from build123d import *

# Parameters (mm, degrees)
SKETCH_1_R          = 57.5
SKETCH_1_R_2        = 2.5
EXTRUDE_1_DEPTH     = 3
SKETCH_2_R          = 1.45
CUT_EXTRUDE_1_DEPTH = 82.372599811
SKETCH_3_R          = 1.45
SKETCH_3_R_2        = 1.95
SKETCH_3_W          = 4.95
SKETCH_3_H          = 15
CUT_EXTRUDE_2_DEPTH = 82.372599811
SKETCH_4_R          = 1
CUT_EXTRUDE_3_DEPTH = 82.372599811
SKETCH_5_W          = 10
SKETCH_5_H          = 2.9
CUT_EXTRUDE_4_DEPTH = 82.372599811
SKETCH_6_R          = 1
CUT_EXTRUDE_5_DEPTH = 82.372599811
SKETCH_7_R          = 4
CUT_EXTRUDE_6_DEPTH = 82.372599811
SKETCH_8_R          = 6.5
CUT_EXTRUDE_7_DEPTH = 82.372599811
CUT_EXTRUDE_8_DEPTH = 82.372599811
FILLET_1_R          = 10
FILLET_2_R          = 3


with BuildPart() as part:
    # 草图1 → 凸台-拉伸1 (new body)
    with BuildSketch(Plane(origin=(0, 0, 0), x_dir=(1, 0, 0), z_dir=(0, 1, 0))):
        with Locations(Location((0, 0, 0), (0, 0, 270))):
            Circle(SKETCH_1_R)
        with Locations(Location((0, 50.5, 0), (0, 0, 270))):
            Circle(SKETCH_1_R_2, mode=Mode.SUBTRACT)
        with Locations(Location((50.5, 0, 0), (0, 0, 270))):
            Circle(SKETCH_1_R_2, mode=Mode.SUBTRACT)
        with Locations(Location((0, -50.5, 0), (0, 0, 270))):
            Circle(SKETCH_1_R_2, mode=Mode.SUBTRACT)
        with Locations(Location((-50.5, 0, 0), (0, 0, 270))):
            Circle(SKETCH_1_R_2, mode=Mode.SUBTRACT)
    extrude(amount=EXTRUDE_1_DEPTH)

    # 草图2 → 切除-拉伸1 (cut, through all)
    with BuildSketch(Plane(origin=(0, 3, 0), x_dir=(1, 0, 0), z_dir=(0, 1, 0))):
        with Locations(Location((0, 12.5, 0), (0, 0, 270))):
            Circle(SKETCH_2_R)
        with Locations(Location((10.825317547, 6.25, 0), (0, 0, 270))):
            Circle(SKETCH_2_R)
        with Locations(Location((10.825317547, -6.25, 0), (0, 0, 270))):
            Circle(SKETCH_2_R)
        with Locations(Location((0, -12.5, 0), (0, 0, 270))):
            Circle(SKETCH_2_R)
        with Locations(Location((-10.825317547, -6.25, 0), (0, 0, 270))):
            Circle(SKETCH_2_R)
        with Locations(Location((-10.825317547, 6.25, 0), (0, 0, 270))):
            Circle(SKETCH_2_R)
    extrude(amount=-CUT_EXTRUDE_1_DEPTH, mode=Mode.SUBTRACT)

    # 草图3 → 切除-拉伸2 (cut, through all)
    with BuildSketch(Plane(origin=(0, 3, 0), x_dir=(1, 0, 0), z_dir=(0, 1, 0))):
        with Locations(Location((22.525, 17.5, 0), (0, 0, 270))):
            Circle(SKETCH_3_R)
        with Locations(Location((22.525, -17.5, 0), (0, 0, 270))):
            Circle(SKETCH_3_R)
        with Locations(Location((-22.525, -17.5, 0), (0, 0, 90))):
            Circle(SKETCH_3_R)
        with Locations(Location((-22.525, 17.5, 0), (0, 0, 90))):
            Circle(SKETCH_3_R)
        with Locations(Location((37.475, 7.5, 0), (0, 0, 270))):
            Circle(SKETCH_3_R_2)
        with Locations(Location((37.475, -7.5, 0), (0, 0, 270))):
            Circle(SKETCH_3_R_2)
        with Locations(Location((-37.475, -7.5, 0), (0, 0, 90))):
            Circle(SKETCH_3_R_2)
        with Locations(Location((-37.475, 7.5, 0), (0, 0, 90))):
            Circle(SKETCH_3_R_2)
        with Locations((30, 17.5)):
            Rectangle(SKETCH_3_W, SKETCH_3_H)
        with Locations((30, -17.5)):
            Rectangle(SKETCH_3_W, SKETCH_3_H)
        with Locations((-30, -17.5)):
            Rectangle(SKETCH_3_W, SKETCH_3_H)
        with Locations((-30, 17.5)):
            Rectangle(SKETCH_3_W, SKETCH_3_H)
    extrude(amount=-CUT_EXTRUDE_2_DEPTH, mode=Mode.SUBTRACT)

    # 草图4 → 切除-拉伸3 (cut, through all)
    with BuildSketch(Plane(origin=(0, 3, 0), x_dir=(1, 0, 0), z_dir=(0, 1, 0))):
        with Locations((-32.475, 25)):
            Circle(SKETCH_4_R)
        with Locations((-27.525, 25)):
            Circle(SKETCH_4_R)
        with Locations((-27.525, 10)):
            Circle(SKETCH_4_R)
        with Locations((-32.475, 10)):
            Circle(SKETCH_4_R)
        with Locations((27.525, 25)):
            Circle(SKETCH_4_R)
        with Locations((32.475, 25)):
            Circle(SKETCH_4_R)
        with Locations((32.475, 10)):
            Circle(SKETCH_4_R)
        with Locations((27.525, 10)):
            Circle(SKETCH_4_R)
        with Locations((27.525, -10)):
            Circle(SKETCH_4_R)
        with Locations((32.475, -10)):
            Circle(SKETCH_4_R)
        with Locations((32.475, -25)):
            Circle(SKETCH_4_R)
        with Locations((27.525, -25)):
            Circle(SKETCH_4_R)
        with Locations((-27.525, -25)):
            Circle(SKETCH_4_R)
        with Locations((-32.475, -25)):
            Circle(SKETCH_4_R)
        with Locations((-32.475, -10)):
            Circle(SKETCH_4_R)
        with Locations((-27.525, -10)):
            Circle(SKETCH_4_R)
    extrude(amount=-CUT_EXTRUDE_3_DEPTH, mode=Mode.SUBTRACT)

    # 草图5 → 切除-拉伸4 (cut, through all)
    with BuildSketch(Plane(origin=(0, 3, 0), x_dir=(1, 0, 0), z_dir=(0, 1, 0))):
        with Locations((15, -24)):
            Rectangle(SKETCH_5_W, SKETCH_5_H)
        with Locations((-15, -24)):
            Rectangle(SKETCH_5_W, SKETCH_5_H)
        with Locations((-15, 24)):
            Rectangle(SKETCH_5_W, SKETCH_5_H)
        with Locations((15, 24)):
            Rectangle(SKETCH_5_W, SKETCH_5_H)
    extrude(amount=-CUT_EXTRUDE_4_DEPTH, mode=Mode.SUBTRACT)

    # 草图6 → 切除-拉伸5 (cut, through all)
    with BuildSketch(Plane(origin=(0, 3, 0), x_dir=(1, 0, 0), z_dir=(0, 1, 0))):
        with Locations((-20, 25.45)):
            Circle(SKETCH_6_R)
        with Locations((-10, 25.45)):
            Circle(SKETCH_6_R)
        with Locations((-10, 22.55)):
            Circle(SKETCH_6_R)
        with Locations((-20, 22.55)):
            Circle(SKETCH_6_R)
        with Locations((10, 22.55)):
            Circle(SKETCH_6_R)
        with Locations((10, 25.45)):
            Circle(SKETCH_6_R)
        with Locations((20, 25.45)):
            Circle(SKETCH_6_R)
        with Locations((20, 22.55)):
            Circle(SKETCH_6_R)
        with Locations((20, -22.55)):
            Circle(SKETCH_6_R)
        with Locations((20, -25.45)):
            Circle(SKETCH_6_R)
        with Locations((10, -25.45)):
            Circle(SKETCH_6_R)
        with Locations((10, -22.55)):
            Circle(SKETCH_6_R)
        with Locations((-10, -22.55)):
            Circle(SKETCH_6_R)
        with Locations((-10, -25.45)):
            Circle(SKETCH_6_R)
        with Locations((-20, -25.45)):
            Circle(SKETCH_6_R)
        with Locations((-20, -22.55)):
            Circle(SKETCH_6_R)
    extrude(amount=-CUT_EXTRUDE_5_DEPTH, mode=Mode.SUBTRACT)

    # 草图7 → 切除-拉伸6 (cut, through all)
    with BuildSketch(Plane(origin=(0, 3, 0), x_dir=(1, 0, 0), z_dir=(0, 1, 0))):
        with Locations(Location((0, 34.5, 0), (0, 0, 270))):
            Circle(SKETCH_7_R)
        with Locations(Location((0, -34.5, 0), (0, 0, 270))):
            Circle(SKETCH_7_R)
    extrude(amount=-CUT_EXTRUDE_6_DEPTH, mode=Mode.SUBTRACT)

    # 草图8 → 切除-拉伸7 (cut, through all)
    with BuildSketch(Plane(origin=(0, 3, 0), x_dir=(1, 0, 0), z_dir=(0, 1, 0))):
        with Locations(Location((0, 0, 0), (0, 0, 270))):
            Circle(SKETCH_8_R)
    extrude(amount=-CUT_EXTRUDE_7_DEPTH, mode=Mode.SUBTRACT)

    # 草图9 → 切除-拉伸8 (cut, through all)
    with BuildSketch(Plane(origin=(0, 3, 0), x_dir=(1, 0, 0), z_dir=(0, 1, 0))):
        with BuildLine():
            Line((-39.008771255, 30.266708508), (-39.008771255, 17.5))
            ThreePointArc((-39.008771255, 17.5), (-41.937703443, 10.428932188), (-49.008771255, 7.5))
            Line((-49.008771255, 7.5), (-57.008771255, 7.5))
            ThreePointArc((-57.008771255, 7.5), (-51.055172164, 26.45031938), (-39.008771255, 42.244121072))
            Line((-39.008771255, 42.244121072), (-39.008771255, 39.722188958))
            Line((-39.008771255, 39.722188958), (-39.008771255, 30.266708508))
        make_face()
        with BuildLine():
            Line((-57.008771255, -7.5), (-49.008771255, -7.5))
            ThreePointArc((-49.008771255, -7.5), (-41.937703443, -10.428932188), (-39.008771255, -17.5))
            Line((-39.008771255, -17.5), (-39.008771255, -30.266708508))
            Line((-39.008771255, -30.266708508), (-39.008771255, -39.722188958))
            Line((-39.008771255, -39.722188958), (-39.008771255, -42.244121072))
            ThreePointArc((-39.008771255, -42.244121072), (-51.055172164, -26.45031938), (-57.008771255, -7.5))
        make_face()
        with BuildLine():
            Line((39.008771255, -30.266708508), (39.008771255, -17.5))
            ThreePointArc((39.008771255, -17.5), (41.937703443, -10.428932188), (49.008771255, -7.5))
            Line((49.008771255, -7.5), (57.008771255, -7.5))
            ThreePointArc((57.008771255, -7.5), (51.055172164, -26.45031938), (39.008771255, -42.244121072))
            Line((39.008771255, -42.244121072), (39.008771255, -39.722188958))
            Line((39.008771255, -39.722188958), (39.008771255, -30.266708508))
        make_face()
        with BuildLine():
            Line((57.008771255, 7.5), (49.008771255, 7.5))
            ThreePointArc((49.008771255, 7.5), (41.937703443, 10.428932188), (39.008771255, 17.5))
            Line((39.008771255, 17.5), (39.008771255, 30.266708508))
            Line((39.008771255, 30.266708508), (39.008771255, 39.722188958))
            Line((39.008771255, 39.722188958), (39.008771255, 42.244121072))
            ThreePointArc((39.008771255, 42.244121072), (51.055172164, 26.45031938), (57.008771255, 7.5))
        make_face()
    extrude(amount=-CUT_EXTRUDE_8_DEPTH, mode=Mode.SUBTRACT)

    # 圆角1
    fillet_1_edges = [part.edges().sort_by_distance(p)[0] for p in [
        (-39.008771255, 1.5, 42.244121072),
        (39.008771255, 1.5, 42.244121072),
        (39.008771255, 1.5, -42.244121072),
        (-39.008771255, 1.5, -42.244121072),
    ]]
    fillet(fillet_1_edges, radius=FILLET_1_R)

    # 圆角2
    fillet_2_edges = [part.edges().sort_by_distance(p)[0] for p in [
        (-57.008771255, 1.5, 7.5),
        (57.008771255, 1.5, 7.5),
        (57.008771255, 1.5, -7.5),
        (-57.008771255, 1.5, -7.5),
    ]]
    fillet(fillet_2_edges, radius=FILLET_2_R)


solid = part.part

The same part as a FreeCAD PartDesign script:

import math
import FreeCAD as App
import Part
import Sketcher

V = App.Vector


def edges_at(feature, points):
    """Names of the edges that pass closest to the given points."""
    edges = feature.Shape.Edges
    near = lambda p: min(range(len(edges)), key=lambda i: edges[i].distToShape(Part.Vertex(*p))[0])
    return sorted({f"Edge{near(p) + 1}" for p in points})

doc = App.newDocument("Part")
params = doc.addObject("Spreadsheet::Sheet", "Params")
for row, (alias, value) in enumerate([
    ("sketch1_diameter", "115 mm"),
    ("sketch1_diameter2", "5 mm"),
    ("pad1_length", "3 mm"),
    ("sketch2_diameter", "2.9 mm"),
    ("sketch3_diameter", "2.9 mm"),
    ("sketch3_diameter2", "3.9 mm"),
    ("sketch3_height", "15 mm"),
    ("sketch3_width", "4.95 mm"),
    ("sketch4_diameter", "2 mm"),
    ("sketch5_width", "10 mm"),
    ("sketch5_height", "2.9 mm"),
    ("sketch6_diameter", "2 mm"),
    ("sketch7_diameter", "8 mm"),
    ("sketch8_diameter", "13 mm"),
    ("sketch9_radius", "10 mm"),
    ("sketch9_radius2", "57.5 mm"),
    ("sketch9_width", "8 mm"),
    ("fillet_radius", "10 mm"),
    ("fillet2_radius", "3 mm"),
], start=1):
    params.set(f"A{row}", alias)
    params.set(f"B{row}", "=" + value)
    params.setAlias(f"B{row}", alias)

body = doc.addObject("PartDesign::Body", "Body")

# Sketch on XZ plane
sketch1 = body.newObject("Sketcher::SketchObject", "Sketch")
sketch1.AttachmentSupport = (doc.getObject("XZ_Plane"), [""])
sketch1.MapMode = "FlatFace"
sketch1.addGeometry(Part.Circle(V(0, 0, 0), V(0, 0, 1), 57.5), False)
sketch1.addGeometry(Part.Circle(V(0, -50.5, 0), V(0, 0, 1), 2.5), False)
sketch1.addGeometry(Part.Circle(V(-50.5, 0, 0), V(0, 0, 1), 2.5), False)
sketch1.addGeometry(Part.Circle(V(50.5, 0, 0), V(0, 0, 1), 2.5), False)
sketch1.addGeometry(Part.Circle(V(0, 50.5, 0), V(0, 0, 1), 2.5), False)
sketch1.addConstraint(Sketcher.Constraint("Coincident", 0, 3, -1, 1))
sketch1.addConstraint(Sketcher.Constraint("Equal", 1, 2))
sketch1.addConstraint(Sketcher.Constraint("Equal", 2, 3))
sketch1.addConstraint(Sketcher.Constraint("Equal", 3, 4))
sketch1.addConstraint(Sketcher.Constraint("Symmetric", 2, 3, 3, 3, -1, 1))
sketch1.addConstraint(Sketcher.Constraint("Symmetric", 1, 3, 4, 3, -1, 1))
sketch1.addConstraint(Sketcher.Constraint("PointOnObject", 1, 3, -2))
sketch1.addConstraint(Sketcher.Constraint("PointOnObject", 2, 3, -1))
sketch1.addConstraint(Sketcher.Constraint("Diameter", 0, 115.0))
sketch1.addConstraint(Sketcher.Constraint("Diameter", 1, 5.0))
sketch1.addConstraint(Sketcher.Constraint("DistanceX", 2, 3, 3, 3, 101.0))
sketch1.addConstraint(Sketcher.Constraint("DistanceY", 1, 3, 4, 3, 101.0))
sketch1.setExpression("Constraints[8]", "Params.sketch1_diameter")
sketch1.setExpression("Constraints[9]", "Params.sketch1_diameter2")
pad1 = body.newObject("PartDesign::Pad", "Pad")
pad1.Profile = sketch1
pad1.setExpression("Length", "Params.pad1_length")
pad1.Reversed = True

# Sketch on XZ plane
sketch2 = body.newObject("Sketcher::SketchObject", "Sketch001")
sketch2.AttachmentSupport = (doc.getObject("XZ_Plane"), [""])
sketch2.MapMode = "FlatFace"
sketch2.AttachmentOffset = App.Placement(V(0, 0, -3), App.Rotation())
sketch2.addGeometry(Part.Circle(V(0, -12.5, 0), V(0, 0, 1), 1.4), False)
sketch2.addGeometry(Part.Circle(V(10.8, -6.2, 0), V(0, 0, 1), 1.4), False)
sketch2.addGeometry(Part.Circle(V(10.8, 6.2, 0), V(0, 0, 1), 1.4), False)
sketch2.addGeometry(Part.Circle(V(0, 12.5, 0), V(0, 0, 1), 1.4), False)
sketch2.addGeometry(Part.Circle(V(-10.8, 6.2, 0), V(0, 0, 1), 1.4), False)
sketch2.addGeometry(Part.Circle(V(-10.8, -6.2, 0), V(0, 0, 1), 1.4), False)
sketch2.addConstraint(Sketcher.Constraint("Equal", 0, 1))
sketch2.addConstraint(Sketcher.Constraint("Equal", 1, 2))
sketch2.addConstraint(Sketcher.Constraint("Equal", 2, 3))
sketch2.addConstraint(Sketcher.Constraint("Equal", 3, 4))
sketch2.addConstraint(Sketcher.Constraint("Equal", 4, 5))
sketch2.addConstraint(Sketcher.Constraint("Symmetric", 0, 3, 3, 3, -1, 1))
sketch2.addConstraint(Sketcher.Constraint("Symmetric", 1, 3, 4, 3, -1, 1))
sketch2.addConstraint(Sketcher.Constraint("Symmetric", 2, 3, 5, 3, -1, 1))
sketch2.addConstraint(Sketcher.Constraint("Symmetric", 2, 3, 4, 3, -2))
sketch2.addConstraint(Sketcher.Constraint("PointOnObject", 0, 3, -2))
sketch2.addConstraint(Sketcher.Constraint("Diameter", 0, 2.9))
sketch2.addConstraint(Sketcher.Constraint("DistanceY", 0, 3, 3, 3, 25.0))
sketch2.addConstraint(Sketcher.Constraint("DistanceY", 1, 3, 2, 3, 12.5))
sketch2.addConstraint(Sketcher.Constraint("DistanceX", -1, 1, 1, 3, 10.825318))
sketch2.setExpression("Constraints[10]", "Params.sketch2_diameter")
pocket1 = body.newObject("PartDesign::Pocket", "Pocket")
pocket1.Profile = sketch2
pocket1.Type = "ThroughAll"
pocket1.Reversed = True

# Sketch on XZ plane
sketch3 = body.newObject("Sketcher::SketchObject", "Sketch002")
sketch3.AttachmentSupport = (doc.getObject("XZ_Plane"), [""])
sketch3.MapMode = "FlatFace"
sketch3.AttachmentOffset = App.Placement(V(0, 0, -3), App.Rotation())
sketch3.addGeometry(Part.Circle(V(22.5, -17.5, 0), V(0, 0, 1), 1.4), False)
sketch3.addGeometry(Part.Circle(V(22.5, 17.5, 0), V(0, 0, 1), 1.4), False)
sketch3.addGeometry(Part.Circle(V(-22.5, 17.5, 0), V(0, 0, 1), 1.4), False)
sketch3.addGeometry(Part.Circle(V(-22.5, -17.5, 0), V(0, 0, 1), 1.4), False)
sketch3.addGeometry(Part.Circle(V(37.5, -7.5, 0), V(0, 0, 1), 1.9), False)
sketch3.addGeometry(Part.Circle(V(37.5, 7.5, 0), V(0, 0, 1), 1.9), False)
sketch3.addGeometry(Part.Circle(V(-37.5, 7.5, 0), V(0, 0, 1), 1.9), False)
sketch3.addGeometry(Part.Circle(V(-37.5, -7.5, 0), V(0, 0, 1), 1.9), False)
sketch3.addGeometry(Part.LineSegment(V(27.5, -25, 0), V(27.5, -10, 0)), False)
sketch3.addGeometry(Part.LineSegment(V(27.5, -10, 0), V(32.5, -10, 0)), False)
sketch3.addGeometry(Part.LineSegment(V(32.5, -10, 0), V(32.5, -25, 0)), False)
sketch3.addGeometry(Part.LineSegment(V(32.5, -25, 0), V(27.5, -25, 0)), False)
sketch3.addGeometry(Part.LineSegment(V(27.5, 10, 0), V(27.5, 25, 0)), False)
sketch3.addGeometry(Part.LineSegment(V(27.5, 25, 0), V(32.5, 25, 0)), False)
sketch3.addGeometry(Part.LineSegment(V(32.5, 25, 0), V(32.5, 10, 0)), False)
sketch3.addGeometry(Part.LineSegment(V(32.5, 10, 0), V(27.5, 10, 0)), False)
sketch3.addGeometry(Part.LineSegment(V(-32.5, 10, 0), V(-32.5, 25, 0)), False)
sketch3.addGeometry(Part.LineSegment(V(-32.5, 25, 0), V(-27.5, 25, 0)), False)
sketch3.addGeometry(Part.LineSegment(V(-27.5, 25, 0), V(-27.5, 10, 0)), False)
sketch3.addGeometry(Part.LineSegment(V(-27.5, 10, 0), V(-32.5, 10, 0)), False)
sketch3.addGeometry(Part.LineSegment(V(-32.5, -25, 0), V(-32.5, -10, 0)), False)
sketch3.addGeometry(Part.LineSegment(V(-32.5, -10, 0), V(-27.5, -10, 0)), False)
sketch3.addGeometry(Part.LineSegment(V(-27.5, -10, 0), V(-27.5, -25, 0)), False)
sketch3.addGeometry(Part.LineSegment(V(-27.5, -25, 0), V(-32.5, -25, 0)), False)
sketch3.addConstraint(Sketcher.Constraint("Coincident", 8, 2, 9, 1))
sketch3.addConstraint(Sketcher.Constraint("Coincident", 9, 2, 10, 1))
sketch3.addConstraint(Sketcher.Constraint("Coincident", 10, 2, 11, 1))
sketch3.addConstraint(Sketcher.Constraint("Coincident", 11, 2, 8, 1))
sketch3.addConstraint(Sketcher.Constraint("Coincident", 12, 2, 13, 1))
sketch3.addConstraint(Sketcher.Constraint("Coincident", 13, 2, 14, 1))
sketch3.addConstraint(Sketcher.Constraint("Coincident", 14, 2, 15, 1))
sketch3.addConstraint(Sketcher.Constraint("Coincident", 15, 2, 12, 1))
sketch3.addConstraint(Sketcher.Constraint("Coincident", 16, 2, 17, 1))
sketch3.addConstraint(Sketcher.Constraint("Coincident", 17, 2, 18, 1))
sketch3.addConstraint(Sketcher.Constraint("Coincident", 18, 2, 19, 1))
sketch3.addConstraint(Sketcher.Constraint("Coincident", 19, 2, 16, 1))
sketch3.addConstraint(Sketcher.Constraint("Coincident", 20, 2, 21, 1))
sketch3.addConstraint(Sketcher.Constraint("Coincident", 21, 2, 22, 1))
sketch3.addConstraint(Sketcher.Constraint("Coincident", 22, 2, 23, 1))
sketch3.addConstraint(Sketcher.Constraint("Coincident", 23, 2, 20, 1))
sketch3.addConstraint(Sketcher.Constraint("Vertical", 8))
sketch3.addConstraint(Sketcher.Constraint("Horizontal", 9))
sketch3.addConstraint(Sketcher.Constraint("Vertical", 10))
sketch3.addConstraint(Sketcher.Constraint("Horizontal", 11))
sketch3.addConstraint(Sketcher.Constraint("Vertical", 12))
sketch3.addConstraint(Sketcher.Constraint("Horizontal", 13))
sketch3.addConstraint(Sketcher.Constraint("Vertical", 14))
sketch3.addConstraint(Sketcher.Constraint("Horizontal", 15))
sketch3.addConstraint(Sketcher.Constraint("Vertical", 16))
sketch3.addConstraint(Sketcher.Constraint("Horizontal", 17))
sketch3.addConstraint(Sketcher.Constraint("Vertical", 18))
sketch3.addConstraint(Sketcher.Constraint("Horizontal", 19))
sketch3.addConstraint(Sketcher.Constraint("Vertical", 20))
sketch3.addConstraint(Sketcher.Constraint("Horizontal", 21))
sketch3.addConstraint(Sketcher.Constraint("Vertical", 22))
sketch3.addConstraint(Sketcher.Constraint("Horizontal", 23))
sketch3.addConstraint(Sketcher.Constraint("Equal", 0, 1))
sketch3.addConstraint(Sketcher.Constraint("Equal", 1, 2))
sketch3.addConstraint(Sketcher.Constraint("Equal", 2, 3))
sketch3.addConstraint(Sketcher.Constraint("Equal", 4, 5))
sketch3.addConstraint(Sketcher.Constraint("Equal", 5, 6))
sketch3.addConstraint(Sketcher.Constraint("Equal", 6, 7))
sketch3.addConstraint(Sketcher.Constraint("Symmetric", 0, 3, 2, 3, -1, 1))
sketch3.addConstraint(Sketcher.Constraint("Symmetric", 1, 3, 3, 3, -1, 1))
sketch3.addConstraint(Sketcher.Constraint("Symmetric", 4, 3, 6, 3, -1, 1))
sketch3.addConstraint(Sketcher.Constraint("Symmetric", 5, 3, 7, 3, -1, 1))
sketch3.addConstraint(Sketcher.Constraint("Symmetric", 10, 2, 16, 2, -1, 1))
sketch3.addConstraint(Sketcher.Constraint("Symmetric", 8, 2, 18, 2, -1, 1))
sketch3.addConstraint(Sketcher.Constraint("Symmetric", 14, 2, 20, 2, -1, 1))
sketch3.addConstraint(Sketcher.Constraint("Symmetric", 12, 2, 22, 2, -1, 1))
sketch3.addConstraint(Sketcher.Constraint("Symmetric", 1, 3, 2, 3, -2))
sketch3.addConstraint(Sketcher.Constraint("Symmetric", 5, 3, 6, 3, -2))
sketch3.addConstraint(Sketcher.Constraint("Symmetric", 13, 2, 16, 2, -2))
sketch3.addConstraint(Sketcher.Constraint("Symmetric", 15, 2, 18, 2, -2))
sketch3.addConstraint(Sketcher.Constraint("Diameter", 0, 2.9))
sketch3.addConstraint(Sketcher.Constraint("Diameter", 4, 3.9))
sketch3.addConstraint(Sketcher.Constraint("DistanceY", 8, 1, 8, 2, 15.0))
sketch3.addConstraint(Sketcher.Constraint("DistanceY", 8, 2, -1, 1, 10.0))
sketch3.addConstraint(Sketcher.Constraint("DistanceY", 0, 3, 1, 3, 35.0))
sketch3.addConstraint(Sketcher.Constraint("DistanceY", 0, 3, 4, 3, 10.0))
sketch3.addConstraint(Sketcher.Constraint("DistanceX", 3, 3, 4, 3, 60.0))
sketch3.addConstraint(Sketcher.Constraint("DistanceX", 0, 3, 8, 2, 5.0))
sketch3.addConstraint(Sketcher.Constraint("DistanceX", 9, 2, 4, 3, 5.0))
sketch3.addConstraint(Sketcher.Constraint("DistanceX", 9, 1, 9, 2, 4.95))
sketch3.setExpression("Constraints[50]", "Params.sketch3_diameter")
sketch3.setExpression("Constraints[51]", "Params.sketch3_diameter2")
sketch3.setExpression("Constraints[52]", "Params.sketch3_height")
sketch3.setExpression("Constraints[59]", "Params.sketch3_width")
pocket2 = body.newObject("PartDesign::Pocket", "Pocket001")
pocket2.Profile = sketch3
pocket2.Type = "ThroughAll"
pocket2.Reversed = True

# Sketch on XZ plane
sketch4 = body.newObject("Sketcher::SketchObject", "Sketch003")
sketch4.AttachmentSupport = (doc.getObject("XZ_Plane"), [""])
sketch4.MapMode = "FlatFace"
sketch4.AttachmentOffset = App.Placement(V(0, 0, -3), App.Rotation())
sketch4.addGeometry(Part.Circle(V(-32.5, -25, 0), V(0, 0, 1), 1), False)
sketch4.addGeometry(Part.Circle(V(-27.5, -25, 0), V(0, 0, 1), 1), False)
sketch4.addGeometry(Part.Circle(V(-27.5, -10, 0), V(0, 0, 1), 1), False)
sketch4.addGeometry(Part.Circle(V(-32.5, -10, 0), V(0, 0, 1), 1), False)
sketch4.addGeometry(Part.Circle(V(27.5, -25, 0), V(0, 0, 1), 1), False)
sketch4.addGeometry(Part.Circle(V(32.5, -25, 0), V(0, 0, 1), 1), False)
sketch4.addGeometry(Part.Circle(V(32.5, -10, 0), V(0, 0, 1), 1), False)
sketch4.addGeometry(Part.Circle(V(27.5, -10, 0), V(0, 0, 1), 1), False)
sketch4.addGeometry(Part.Circle(V(27.5, 10, 0), V(0, 0, 1), 1), False)
sketch4.addGeometry(Part.Circle(V(32.5, 10, 0), V(0, 0, 1), 1), False)
sketch4.addGeometry(Part.Circle(V(32.5, 25, 0), V(0, 0, 1), 1), False)
sketch4.addGeometry(Part.Circle(V(27.5, 25, 0), V(0, 0, 1), 1), False)
sketch4.addGeometry(Part.Circle(V(-27.5, 25, 0), V(0, 0, 1), 1), False)
sketch4.addGeometry(Part.Circle(V(-32.5, 25, 0), V(0, 0, 1), 1), False)
sketch4.addGeometry(Part.Circle(V(-32.5, 10, 0), V(0, 0, 1), 1), False)
sketch4.addGeometry(Part.Circle(V(-27.5, 10, 0), V(0, 0, 1), 1), False)
sketch4.addConstraint(Sketcher.Constraint("Equal", 0, 1))
sketch4.addConstraint(Sketcher.Constraint("Equal", 1, 2))
sketch4.addConstraint(Sketcher.Constraint("Equal", 2, 3))
sketch4.addConstraint(Sketcher.Constraint("Equal", 3, 4))
sketch4.addConstraint(Sketcher.Constraint("Equal", 4, 5))
sketch4.addConstraint(Sketcher.Constraint("Equal", 5, 6))
sketch4.addConstraint(Sketcher.Constraint("Equal", 6, 7))
sketch4.addConstraint(Sketcher.Constraint("Equal", 7, 8))
sketch4.addConstraint(Sketcher.Constraint("Equal", 8, 9))
sketch4.addConstraint(Sketcher.Constraint("Equal", 9, 10))
sketch4.addConstraint(Sketcher.Constraint("Equal", 10, 11))
sketch4.addConstraint(Sketcher.Constraint("Equal", 11, 12))
sketch4.addConstraint(Sketcher.Constraint("Equal", 12, 13))
sketch4.addConstraint(Sketcher.Constraint("Equal", 13, 14))
sketch4.addConstraint(Sketcher.Constraint("Equal", 14, 15))
sketch4.addConstraint(Sketcher.Constraint("Symmetric", 2, 3, 8, 3, -1, 1))
sketch4.addConstraint(Sketcher.Constraint("Symmetric", 3, 3, 9, 3, -1, 1))
sketch4.addConstraint(Sketcher.Constraint("Symmetric", 0, 3, 10, 3, -1, 1))
sketch4.addConstraint(Sketcher.Constraint("Symmetric", 1, 3, 11, 3, -1, 1))
sketch4.addConstraint(Sketcher.Constraint("Symmetric", 4, 3, 12, 3, -1, 1))
sketch4.addConstraint(Sketcher.Constraint("Symmetric", 5, 3, 13, 3, -1, 1))
sketch4.addConstraint(Sketcher.Constraint("Symmetric", 6, 3, 14, 3, -1, 1))
sketch4.addConstraint(Sketcher.Constraint("Symmetric", 7, 3, 15, 3, -1, 1))
sketch4.addConstraint(Sketcher.Constraint("Symmetric", 1, 3, 4, 3, -2))
sketch4.addConstraint(Sketcher.Constraint("Symmetric", 0, 3, 5, 3, -2))
sketch4.addConstraint(Sketcher.Constraint("Symmetric", 3, 3, 6, 3, -2))
sketch4.addConstraint(Sketcher.Constraint("Symmetric", 2, 3, 7, 3, -2))
sketch4.addConstraint(Sketcher.Constraint("Horizontal", 0, 3, 1, 3))
sketch4.addConstraint(Sketcher.Constraint("Horizontal", 2, 3, 3, 3))
sketch4.addConstraint(Sketcher.Constraint("Vertical", 1, 3, 2, 3))
sketch4.addConstraint(Sketcher.Constraint("Vertical", 0, 3, 3, 3))
sketch4.addConstraint(Sketcher.Constraint("Diameter", 0, 2.0))
sketch4.addConstraint(Sketcher.Constraint("DistanceY", 0, 3, -1, 1, 25.0))
sketch4.addConstraint(Sketcher.Constraint("DistanceY", 2, 3, -1, 1, 10.0))
sketch4.addConstraint(Sketcher.Constraint("DistanceX", 0, 3, 4, 3, 60.0))
sketch4.addConstraint(Sketcher.Constraint("DistanceX", 0, 3, 1, 3, 4.95))
sketch4.setExpression("Constraints[31]", "Params.sketch4_diameter")
pocket3 = body.newObject("PartDesign::Pocket", "Pocket002")
pocket3.Profile = sketch4
pocket3.Type = "ThroughAll"
pocket3.Reversed = True

# Sketch on XZ plane
sketch5 = body.newObject("Sketcher::SketchObject", "Sketch004")
sketch5.AttachmentSupport = (doc.getObject("XZ_Plane"), [""])
sketch5.MapMode = "FlatFace"
sketch5.AttachmentOffset = App.Placement(V(0, 0, -3), App.Rotation())
sketch5.addGeometry(Part.LineSegment(V(10, 22.6, 0), V(10, 25.4, 0)), False)
sketch5.addGeometry(Part.LineSegment(V(10, 25.4, 0), V(20, 25.4, 0)), False)
sketch5.addGeometry(Part.LineSegment(V(20, 25.4, 0), V(20, 22.6, 0)), False)
sketch5.addGeometry(Part.LineSegment(V(20, 22.6, 0), V(10, 22.6, 0)), False)
sketch5.addGeometry(Part.LineSegment(V(-20, 22.6, 0), V(-20, 25.4, 0)), False)
sketch5.addGeometry(Part.LineSegment(V(-20, 25.4, 0), V(-10, 25.4, 0)), False)
sketch5.addGeometry(Part.LineSegment(V(-10, 25.4, 0), V(-10, 22.6, 0)), False)
sketch5.addGeometry(Part.LineSegment(V(-10, 22.6, 0), V(-20, 22.6, 0)), False)
sketch5.addGeometry(Part.LineSegment(V(-20, -25.4, 0), V(-20, -22.6, 0)), False)
sketch5.addGeometry(Part.LineSegment(V(-20, -22.6, 0), V(-10, -22.6, 0)), False)
sketch5.addGeometry(Part.LineSegment(V(-10, -22.6, 0), V(-10, -25.4, 0)), False)
sketch5.addGeometry(Part.LineSegment(V(-10, -25.4, 0), V(-20, -25.4, 0)), False)
sketch5.addGeometry(Part.LineSegment(V(10, -25.4, 0), V(10, -22.6, 0)), False)
sketch5.addGeometry(Part.LineSegment(V(10, -22.6, 0), V(20, -22.6, 0)), False)
sketch5.addGeometry(Part.LineSegment(V(20, -22.6, 0), V(20, -25.4, 0)), False)
sketch5.addGeometry(Part.LineSegment(V(20, -25.4, 0), V(10, -25.4, 0)), False)
sketch5.addConstraint(Sketcher.Constraint("Coincident", 0, 2, 1, 1))
sketch5.addConstraint(Sketcher.Constraint("Coincident", 1, 2, 2, 1))
sketch5.addConstraint(Sketcher.Constraint("Coincident", 2, 2, 3, 1))
sketch5.addConstraint(Sketcher.Constraint("Coincident", 3, 2, 0, 1))
sketch5.addConstraint(Sketcher.Constraint("Coincident", 4, 2, 5, 1))
sketch5.addConstraint(Sketcher.Constraint("Coincident", 5, 2, 6, 1))
sketch5.addConstraint(Sketcher.Constraint("Coincident", 6, 2, 7, 1))
sketch5.addConstraint(Sketcher.Constraint("Coincident", 7, 2, 4, 1))
sketch5.addConstraint(Sketcher.Constraint("Coincident", 8, 2, 9, 1))
sketch5.addConstraint(Sketcher.Constraint("Coincident", 9, 2, 10, 1))
sketch5.addConstraint(Sketcher.Constraint("Coincident", 10, 2, 11, 1))
sketch5.addConstraint(Sketcher.Constraint("Coincident", 11, 2, 8, 1))
sketch5.addConstraint(Sketcher.Constraint("Coincident", 12, 2, 13, 1))
sketch5.addConstraint(Sketcher.Constraint("Coincident", 13, 2, 14, 1))
sketch5.addConstraint(Sketcher.Constraint("Coincident", 14, 2, 15, 1))
sketch5.addConstraint(Sketcher.Constraint("Coincident", 15, 2, 12, 1))
sketch5.addConstraint(Sketcher.Constraint("Vertical", 0))
sketch5.addConstraint(Sketcher.Constraint("Horizontal", 1))
sketch5.addConstraint(Sketcher.Constraint("Vertical", 2))
sketch5.addConstraint(Sketcher.Constraint("Horizontal", 3))
sketch5.addConstraint(Sketcher.Constraint("Vertical", 4))
sketch5.addConstraint(Sketcher.Constraint("Horizontal", 5))
sketch5.addConstraint(Sketcher.Constraint("Vertical", 6))
sketch5.addConstraint(Sketcher.Constraint("Horizontal", 7))
sketch5.addConstraint(Sketcher.Constraint("Vertical", 8))
sketch5.addConstraint(Sketcher.Constraint("Horizontal", 9))
sketch5.addConstraint(Sketcher.Constraint("Vertical", 10))
sketch5.addConstraint(Sketcher.Constraint("Horizontal", 11))
sketch5.addConstraint(Sketcher.Constraint("Vertical", 12))
sketch5.addConstraint(Sketcher.Constraint("Horizontal", 13))
sketch5.addConstraint(Sketcher.Constraint("Vertical", 14))
sketch5.addConstraint(Sketcher.Constraint("Horizontal", 15))
sketch5.addConstraint(Sketcher.Constraint("Symmetric", 2, 2, 8, 2, -1, 1))
sketch5.addConstraint(Sketcher.Constraint("Symmetric", 0, 2, 10, 2, -1, 1))
sketch5.addConstraint(Sketcher.Constraint("Symmetric", 6, 2, 12, 2, -1, 1))
sketch5.addConstraint(Sketcher.Constraint("Symmetric", 4, 2, 14, 2, -1, 1))
sketch5.addConstraint(Sketcher.Constraint("Symmetric", 1, 2, 4, 2, -2))
sketch5.addConstraint(Sketcher.Constraint("Symmetric", 3, 2, 6, 2, -2))
sketch5.addConstraint(Sketcher.Constraint("DistanceX", 1, 1, 1, 2, 10.0))
sketch5.addConstraint(Sketcher.Constraint("DistanceY", 0, 1, 0, 2, 2.9))
sketch5.addConstraint(Sketcher.Constraint("DistanceX", -1, 1, 0, 2, 10.0))
sketch5.addConstraint(Sketcher.Constraint("DistanceY", 8, 2, 4, 2, 48.0))
sketch5.setExpression("Constraints[38]", "Params.sketch5_width")
sketch5.setExpression("Constraints[39]", "Params.sketch5_height")
pocket4 = body.newObject("PartDesign::Pocket", "Pocket003")
pocket4.Profile = sketch5
pocket4.Type = "ThroughAll"
pocket4.Reversed = True

# Sketch on XZ plane
sketch6 = body.newObject("Sketcher::SketchObject", "Sketch005")
sketch6.AttachmentSupport = (doc.getObject("XZ_Plane"), [""])
sketch6.MapMode = "FlatFace"
sketch6.AttachmentOffset = App.Placement(V(0, 0, -3), App.Rotation())
sketch6.addGeometry(Part.Circle(V(-20, -25.4, 0), V(0, 0, 1), 1), False)
sketch6.addGeometry(Part.Circle(V(-10, -25.4, 0), V(0, 0, 1), 1), False)
sketch6.addGeometry(Part.Circle(V(-10, -22.6, 0), V(0, 0, 1), 1), False)
sketch6.addGeometry(Part.Circle(V(-20, -22.6, 0), V(0, 0, 1), 1), False)
sketch6.addGeometry(Part.Circle(V(10, -22.6, 0), V(0, 0, 1), 1), False)
sketch6.addGeometry(Part.Circle(V(10, -25.4, 0), V(0, 0, 1), 1), False)
sketch6.addGeometry(Part.Circle(V(20, -25.4, 0), V(0, 0, 1), 1), False)
sketch6.addGeometry(Part.Circle(V(20, -22.6, 0), V(0, 0, 1), 1), False)
sketch6.addGeometry(Part.Circle(V(20, 22.6, 0), V(0, 0, 1), 1), False)
sketch6.addGeometry(Part.Circle(V(20, 25.4, 0), V(0, 0, 1), 1), False)
sketch6.addGeometry(Part.Circle(V(10, 25.4, 0), V(0, 0, 1), 1), False)
sketch6.addGeometry(Part.Circle(V(10, 22.6, 0), V(0, 0, 1), 1), False)
sketch6.addGeometry(Part.Circle(V(-10, 22.6, 0), V(0, 0, 1), 1), False)
sketch6.addGeometry(Part.Circle(V(-10, 25.4, 0), V(0, 0, 1), 1), False)
sketch6.addGeometry(Part.Circle(V(-20, 25.4, 0), V(0, 0, 1), 1), False)
sketch6.addGeometry(Part.Circle(V(-20, 22.6, 0), V(0, 0, 1), 1), False)
sketch6.addConstraint(Sketcher.Constraint("Equal", 0, 1))
sketch6.addConstraint(Sketcher.Constraint("Equal", 1, 2))
sketch6.addConstraint(Sketcher.Constraint("Equal", 2, 3))
sketch6.addConstraint(Sketcher.Constraint("Equal", 3, 4))
sketch6.addConstraint(Sketcher.Constraint("Equal", 4, 5))
sketch6.addConstraint(Sketcher.Constraint("Equal", 5, 6))
sketch6.addConstraint(Sketcher.Constraint("Equal", 6, 7))
sketch6.addConstraint(Sketcher.Constraint("Equal", 7, 8))
sketch6.addConstraint(Sketcher.Constraint("Equal", 8, 9))
sketch6.addConstraint(Sketcher.Constraint("Equal", 9, 10))
sketch6.addConstraint(Sketcher.Constraint("Equal", 10, 11))
sketch6.addConstraint(Sketcher.Constraint("Equal", 11, 12))
sketch6.addConstraint(Sketcher.Constraint("Equal", 12, 13))
sketch6.addConstraint(Sketcher.Constraint("Equal", 13, 14))
sketch6.addConstraint(Sketcher.Constraint("Equal", 14, 15))
sketch6.addConstraint(Sketcher.Constraint("Symmetric", 3, 3, 8, 3, -1, 1))
sketch6.addConstraint(Sketcher.Constraint("Symmetric", 0, 3, 9, 3, -1, 1))
sketch6.addConstraint(Sketcher.Constraint("Symmetric", 1, 3, 10, 3, -1, 1))
sketch6.addConstraint(Sketcher.Constraint("Symmetric", 2, 3, 11, 3, -1, 1))
sketch6.addConstraint(Sketcher.Constraint("Symmetric", 4, 3, 12, 3, -1, 1))
sketch6.addConstraint(Sketcher.Constraint("Symmetric", 5, 3, 13, 3, -1, 1))
sketch6.addConstraint(Sketcher.Constraint("Symmetric", 6, 3, 14, 3, -1, 1))
sketch6.addConstraint(Sketcher.Constraint("Symmetric", 7, 3, 15, 3, -1, 1))
sketch6.addConstraint(Sketcher.Constraint("Symmetric", 2, 3, 4, 3, -2))
sketch6.addConstraint(Sketcher.Constraint("Symmetric", 1, 3, 5, 3, -2))
sketch6.addConstraint(Sketcher.Constraint("Symmetric", 0, 3, 6, 3, -2))
sketch6.addConstraint(Sketcher.Constraint("Symmetric", 3, 3, 7, 3, -2))
sketch6.addConstraint(Sketcher.Constraint("Horizontal", 0, 3, 1, 3))
sketch6.addConstraint(Sketcher.Constraint("Horizontal", 2, 3, 3, 3))
sketch6.addConstraint(Sketcher.Constraint("Vertical", 1, 3, 2, 3))
sketch6.addConstraint(Sketcher.Constraint("Vertical", 0, 3, 3, 3))
sketch6.addConstraint(Sketcher.Constraint("Diameter", 0, 2.0))
sketch6.addConstraint(Sketcher.Constraint("DistanceX", 0, 3, -1, 1, 20.0))
sketch6.addConstraint(Sketcher.Constraint("DistanceX", 1, 3, -1, 1, 10.0))
sketch6.addConstraint(Sketcher.Constraint("DistanceY", 6, 3, 8, 3, 48.0))
sketch6.addConstraint(Sketcher.Constraint("DistanceY", 1, 3, 2, 3, 2.9))
sketch6.setExpression("Constraints[31]", "Params.sketch6_diameter")
pocket5 = body.newObject("PartDesign::Pocket", "Pocket004")
pocket5.Profile = sketch6
pocket5.Type = "ThroughAll"
pocket5.Reversed = True

# Sketch on XZ plane
sketch7 = body.newObject("Sketcher::SketchObject", "Sketch006")
sketch7.AttachmentSupport = (doc.getObject("XZ_Plane"), [""])
sketch7.MapMode = "FlatFace"
sketch7.AttachmentOffset = App.Placement(V(0, 0, -3), App.Rotation())
sketch7.addGeometry(Part.Circle(V(0, -34.5, 0), V(0, 0, 1), 4), False)
sketch7.addGeometry(Part.Circle(V(0, 34.5, 0), V(0, 0, 1), 4), False)
sketch7.addConstraint(Sketcher.Constraint("Equal", 0, 1))
sketch7.addConstraint(Sketcher.Constraint("Symmetric", 0, 3, 1, 3, -1, 1))
sketch7.addConstraint(Sketcher.Constraint("PointOnObject", 0, 3, -2))
sketch7.addConstraint(Sketcher.Constraint("Diameter", 0, 8.0))
sketch7.addConstraint(Sketcher.Constraint("DistanceY", 0, 3, 1, 3, 69.0))
sketch7.setExpression("Constraints[3]", "Params.sketch7_diameter")
pocket6 = body.newObject("PartDesign::Pocket", "Pocket005")
pocket6.Profile = sketch7
pocket6.Type = "ThroughAll"
pocket6.Reversed = True

# Sketch on XZ plane
sketch8 = body.newObject("Sketcher::SketchObject", "Sketch007")
sketch8.AttachmentSupport = (doc.getObject("XZ_Plane"), [""])
sketch8.MapMode = "FlatFace"
sketch8.AttachmentOffset = App.Placement(V(0, 0, -3), App.Rotation())
sketch8.addGeometry(Part.Circle(V(0, 0, 0), V(0, 0, 1), 6), False)
sketch8.addConstraint(Sketcher.Constraint("Coincident", 0, 3, -1, 1))
sketch8.addConstraint(Sketcher.Constraint("Diameter", 0, 13.0))
sketch8.setExpression("Constraints[1]", "Params.sketch8_diameter")
pocket7 = body.newObject("PartDesign::Pocket", "Pocket006")
pocket7.Profile = sketch8
pocket7.Type = "ThroughAll"
pocket7.Reversed = True

# Sketch on XZ plane
sketch9 = body.newObject("Sketcher::SketchObject", "Sketch008")
sketch9.AttachmentSupport = (doc.getObject("XZ_Plane"), [""])
sketch9.MapMode = "FlatFace"
sketch9.AttachmentOffset = App.Placement(V(0, 0, -3), App.Rotation())
sketch9.addGeometry(Part.ArcOfCircle(Part.Circle(V(-49, -18, 0), V(0, 0, 1), 10), math.radians(0), math.radians(90)), False)
sketch9.addGeometry(Part.LineSegment(V(-39, -18, 0), V(-39, -42, 0)), False)
sketch9.addGeometry(Part.ArcOfCircle(Part.Circle(V(0, 0, 0), V(0, 0, 1), 57), math.radians(-173), math.radians(-133)), False)
sketch9.addGeometry(Part.LineSegment(V(-57, -8, 0), V(-49, -8, 0)), False)
sketch9.addGeometry(Part.LineSegment(V(-49, 8, 0), V(-57, 8, 0)), False)
sketch9.addGeometry(Part.ArcOfCircle(Part.Circle(V(0, 0, 0), V(0, 0, 1), 57), math.radians(133), math.radians(173)), False)
sketch9.addGeometry(Part.LineSegment(V(-39, 42, 0), V(-39, 18, 0)), False)
sketch9.addGeometry(Part.ArcOfCircle(Part.Circle(V(-49, 18, 0), V(0, 0, 1), 10), math.radians(-90), math.radians(0)), False)
sketch9.addGeometry(Part.ArcOfCircle(Part.Circle(V(49, 18, 0), V(0, 0, 1), 10), math.radians(180), math.radians(270)), False)
sketch9.addGeometry(Part.LineSegment(V(39, 18, 0), V(39, 42, 0)), False)
sketch9.addGeometry(Part.ArcOfCircle(Part.Circle(V(0, 0, 0), V(0, 0, 1), 57), math.radians(7), math.radians(47)), False)
sketch9.addGeometry(Part.LineSegment(V(57, 8, 0), V(49, 8, 0)), False)
sketch9.addGeometry(Part.LineSegment(V(49, -8, 0), V(57, -8, 0)), False)
sketch9.addGeometry(Part.ArcOfCircle(Part.Circle(V(0, 0, 0), V(0, 0, 1), 57), math.radians(-47), math.radians(-7)), False)
sketch9.addGeometry(Part.LineSegment(V(39, -42, 0), V(39, -18, 0)), False)
sketch9.addGeometry(Part.ArcOfCircle(Part.Circle(V(49, -18, 0), V(0, 0, 1), 10), math.radians(90), math.radians(180)), False)
sketch9.addConstraint(Sketcher.Constraint("Tangent", 0, 1, 1, 1))
sketch9.addConstraint(Sketcher.Constraint("Coincident", 1, 2, 2, 2))
sketch9.addConstraint(Sketcher.Constraint("Coincident", 2, 1, 3, 1))
sketch9.addConstraint(Sketcher.Constraint("Tangent", 3, 2, 0, 2))
sketch9.addConstraint(Sketcher.Constraint("Coincident", 4, 2, 5, 2))
sketch9.addConstraint(Sketcher.Constraint("Coincident", 5, 1, 6, 1))
sketch9.addConstraint(Sketcher.Constraint("Tangent", 6, 2, 7, 2))
sketch9.addConstraint(Sketcher.Constraint("Tangent", 7, 1, 4, 1))
sketch9.addConstraint(Sketcher.Constraint("Tangent", 8, 1, 9, 1))
sketch9.addConstraint(Sketcher.Constraint("Coincident", 9, 2, 10, 2))
sketch9.addConstraint(Sketcher.Constraint("Coincident", 10, 1, 11, 1))
sketch9.addConstraint(Sketcher.Constraint("Tangent", 11, 2, 8, 2))
sketch9.addConstraint(Sketcher.Constraint("Coincident", 12, 2, 13, 2))
sketch9.addConstraint(Sketcher.Constraint("Coincident", 13, 1, 14, 1))
sketch9.addConstraint(Sketcher.Constraint("Tangent", 14, 2, 15, 2))
sketch9.addConstraint(Sketcher.Constraint("Tangent", 15, 1, 12, 1))
sketch9.addConstraint(Sketcher.Constraint("Vertical", 1))
sketch9.addConstraint(Sketcher.Constraint("Horizontal", 3))
sketch9.addConstraint(Sketcher.Constraint("Horizontal", 4))
sketch9.addConstraint(Sketcher.Constraint("Vertical", 6))
sketch9.addConstraint(Sketcher.Constraint("Vertical", 9))
sketch9.addConstraint(Sketcher.Constraint("Horizontal", 11))
sketch9.addConstraint(Sketcher.Constraint("Horizontal", 12))
sketch9.addConstraint(Sketcher.Constraint("Vertical", 14))
sketch9.addConstraint(Sketcher.Constraint("Coincident", 2, 3, -1, 1))
sketch9.addConstraint(Sketcher.Constraint("Coincident", 5, 3, -1, 1))
sketch9.addConstraint(Sketcher.Constraint("Coincident", 10, 3, -1, 1))
sketch9.addConstraint(Sketcher.Constraint("Coincident", 13, 3, -1, 1))
sketch9.addConstraint(Sketcher.Constraint("Equal", 2, 5))
sketch9.addConstraint(Sketcher.Constraint("Equal", 0, 7))
sketch9.addConstraint(Sketcher.Constraint("Equal", 7, 8))
sketch9.addConstraint(Sketcher.Constraint("Equal", 5, 10))
sketch9.addConstraint(Sketcher.Constraint("Equal", 10, 13))
sketch9.addConstraint(Sketcher.Constraint("Equal", 8, 15))
sketch9.addConstraint(Sketcher.Constraint("Symmetric", 0, 3, 8, 3, -1, 1))
sketch9.addConstraint(Sketcher.Constraint("Symmetric", 7, 3, 15, 3, -1, 1))
sketch9.addConstraint(Sketcher.Constraint("Symmetric", 7, 3, 8, 3, -2))
sketch9.addConstraint(Sketcher.Constraint("Radius", 0, 10.0))
sketch9.addConstraint(Sketcher.Constraint("Radius", 2, 57.5))
sketch9.addConstraint(Sketcher.Constraint("DistanceX", 3, 1, 3, 2, 8.0))
sketch9.addConstraint(Sketcher.Constraint("DistanceY", 0, 3, 7, 3, 35.0))
sketch9.setExpression("Constraints[37]", "Params.sketch9_radius")
sketch9.setExpression("Constraints[38]", "Params.sketch9_radius2")
sketch9.setExpression("Constraints[39]", "Params.sketch9_width")
pocket8 = body.newObject("PartDesign::Pocket", "Pocket007")
pocket8.Profile = sketch9
pocket8.Type = "ThroughAll"
pocket8.Reversed = True
doc.recompute()

fillet = body.newObject("PartDesign::Fillet", "Fillet")
fillet.Base = (pocket8, edges_at(pocket8, [
    (-39.009, 1.5, 42.244),
    (39.009, 1.5, 42.244),
    (39.009, 1.5, -42.244),
    (-39.009, 1.5, -42.244),
]))
fillet.setExpression("Radius", "Params.fillet_radius")
doc.recompute()

fillet2 = body.newObject("PartDesign::Fillet", "Fillet001")
fillet2.Base = (fillet, edges_at(fillet, [
    (-57.009, 1.5, 7.5),
    (57.009, 1.5, 7.5),
    (57.009, 1.5, -7.5),
    (-57.009, 1.5, -7.5),
]))
fillet2.setExpression("Radius", "Params.fillet2_radius")

doc.recompute()
